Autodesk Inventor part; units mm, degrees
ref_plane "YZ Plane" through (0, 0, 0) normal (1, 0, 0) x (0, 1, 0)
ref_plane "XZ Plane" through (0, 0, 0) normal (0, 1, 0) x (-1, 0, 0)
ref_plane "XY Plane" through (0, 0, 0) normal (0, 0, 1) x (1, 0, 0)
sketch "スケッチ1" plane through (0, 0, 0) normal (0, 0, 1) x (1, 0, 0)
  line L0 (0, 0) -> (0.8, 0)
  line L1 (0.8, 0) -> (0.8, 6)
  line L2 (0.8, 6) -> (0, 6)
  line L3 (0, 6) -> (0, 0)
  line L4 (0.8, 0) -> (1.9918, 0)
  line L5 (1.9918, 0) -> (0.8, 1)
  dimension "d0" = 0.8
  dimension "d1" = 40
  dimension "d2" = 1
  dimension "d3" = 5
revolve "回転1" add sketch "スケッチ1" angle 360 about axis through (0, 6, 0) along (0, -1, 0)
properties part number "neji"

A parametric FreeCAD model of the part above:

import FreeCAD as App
import Part
import Sketcher
Q = App.Units.Quantity

doc = App.newDocument("Part")
body = doc.addObject("PartDesign::Body", "Body")

# Sketch on XY plane
sketch1 = body.newObject("Sketcher::SketchObject", "Sketch")
sketch1.AttachmentSupport = (doc.getObject("XY_Plane"), [""])
sketch1.MapMode = "FlatFace"
sketch1.addGeometry([
    Part.LineSegment(App.Vector(0, 6, 0), App.Vector(0, 0, 0)),  # 0
    Part.LineSegment(App.Vector(0, 0, 0), App.Vector(1.9918, 0, 0)),  # 1
    Part.LineSegment(App.Vector(1.9918, 0, 0), App.Vector(0.8, 1, 0)),  # 2
    Part.LineSegment(App.Vector(0.8, 1, 0), App.Vector(0.8, 6, 0)),  # 3
    Part.LineSegment(App.Vector(0.8, 6, 0), App.Vector(0, 6, 0)),  # 4
], False)
sketch1.addConstraint([
    Sketcher.Constraint("Coincident", 0, 2, 1, 1),
    Sketcher.Constraint("Coincident", 1, 2, 2, 1),
    Sketcher.Constraint("Coincident", 2, 2, 3, 1),
    Sketcher.Constraint("Coincident", 3, 2, 4, 1),
    Sketcher.Constraint("Coincident", 4, 2, 0, 1),
    Sketcher.Constraint("Vertical", 0),
    Sketcher.Constraint("Horizontal", 1),
    Sketcher.Constraint("Vertical", 3),
    Sketcher.Constraint("Horizontal", 4),
    Sketcher.Constraint("Coincident", 0, 2, -1, 1),
    Sketcher.Constraint("DistanceY", 3, 1, 3, 2, 5.0),
    Sketcher.Constraint("DistanceX", 4, 2, 4, 1, 0.8),
    Sketcher.Constraint("DistanceY", -1, 1, 2, 2, 1.0),
    Sketcher.Constraint("Angle", 2, Q("140.001 deg")),
])
revolution = body.newObject("PartDesign::Revolution", "Revolution")
revolution.Profile = sketch1
revolution.ReferenceAxis = (sketch1, ["V_Axis"])
revolution.Angle = 360

doc.recompute()
